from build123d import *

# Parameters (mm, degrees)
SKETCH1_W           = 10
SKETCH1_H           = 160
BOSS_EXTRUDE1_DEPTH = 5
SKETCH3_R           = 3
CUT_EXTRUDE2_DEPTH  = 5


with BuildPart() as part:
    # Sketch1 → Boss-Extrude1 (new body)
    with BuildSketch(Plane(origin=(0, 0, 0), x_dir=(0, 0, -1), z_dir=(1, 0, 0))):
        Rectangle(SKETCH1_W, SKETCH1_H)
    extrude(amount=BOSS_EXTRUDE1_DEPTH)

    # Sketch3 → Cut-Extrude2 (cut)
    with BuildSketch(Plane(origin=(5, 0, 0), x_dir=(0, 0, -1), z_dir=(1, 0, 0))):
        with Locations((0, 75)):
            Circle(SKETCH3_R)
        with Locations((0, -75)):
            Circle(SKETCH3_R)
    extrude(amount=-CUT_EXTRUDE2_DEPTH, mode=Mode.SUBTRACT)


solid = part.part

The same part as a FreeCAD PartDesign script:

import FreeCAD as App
import Part
import Sketcher
from FreeCAD import Vector
Q = App.Units.Quantity


def add_polygon(sketch, points):
    """Adds a closed chain of lines whose ends are joined by coincident constraints."""
    first, n = sketch.GeometryCount, len(points)
    for a, b in zip(points, points[1:] + points[:1]):
        sketch.addGeometry(Part.LineSegment(App.Vector(*a, 0), App.Vector(*b, 0)), False)
    for i in range(n):
        sketch.addConstraint(Sketcher.Constraint("Coincident", first + i, 2, first + (i + 1) % n, 1))

doc = App.newDocument("Part")
body = doc.addObject("PartDesign::Body", "Body")

sketch1 = body.newObject("Sketcher::SketchObject", "Sketch")
sketch1.AttachmentSupport = (doc.getObject("YZ_Plane"), [""])
sketch1.MapMode = "FlatFace"
add_polygon(sketch1, [(80, 5), (-80, 5), (-80, -5), (80, -5)])
sketch1.addConstraint([
    Sketcher.Constraint("Horizontal", 0),
    Sketcher.Constraint("Vertical", 1),
    Sketcher.Constraint("Horizontal", 2),
    Sketcher.Constraint("Vertical", 3),
    Sketcher.Constraint("Symmetric", 0, 2, 2, 2, -1, 1),
    Sketcher.Constraint("DistanceX", 0, 2, 0, 1, Q("160 mm")),
    Sketcher.Constraint("DistanceY", 1, 2, 1, 1, Q("10 mm")),
])
pad1 = body.newObject("PartDesign::Pad", "Pad")
pad1.Profile = sketch1
pad1.Length = 5

sketch2 = body.newObject("Sketcher::SketchObject", "Sketch001")
sketch2.AttachmentSupport = (doc.getObject("YZ_Plane"), [""])
sketch2.MapMode = "FlatFace"
sketch2.AttachmentOffset = App.Placement(Vector(0, 0, 5), App.Rotation())
sketch2.addGeometry([
    Part.Circle(Vector(75, 0, 0), Vector(0, 0, 1), 3),
    Part.Circle(Vector(-75, 0, 0), Vector(0, 0, 1), 3),
], False)
sketch2.addConstraint([
    Sketcher.Constraint("Equal", 0, 1),
    Sketcher.Constraint("Symmetric", 0, 3, 1, 3, -1, 1),
    Sketcher.Constraint("PointOnObject", 0, 3, -1),
    Sketcher.Constraint("Diameter", 0, Q("6 mm")),
    Sketcher.Constraint("DistanceX", -1, 1, 0, 3, Q("75 mm")),
])
pocket1 = body.newObject("PartDesign::Pocket", "Pocket")
pocket1.Profile = sketch2
pocket1.Length = 5

doc.recompute()
